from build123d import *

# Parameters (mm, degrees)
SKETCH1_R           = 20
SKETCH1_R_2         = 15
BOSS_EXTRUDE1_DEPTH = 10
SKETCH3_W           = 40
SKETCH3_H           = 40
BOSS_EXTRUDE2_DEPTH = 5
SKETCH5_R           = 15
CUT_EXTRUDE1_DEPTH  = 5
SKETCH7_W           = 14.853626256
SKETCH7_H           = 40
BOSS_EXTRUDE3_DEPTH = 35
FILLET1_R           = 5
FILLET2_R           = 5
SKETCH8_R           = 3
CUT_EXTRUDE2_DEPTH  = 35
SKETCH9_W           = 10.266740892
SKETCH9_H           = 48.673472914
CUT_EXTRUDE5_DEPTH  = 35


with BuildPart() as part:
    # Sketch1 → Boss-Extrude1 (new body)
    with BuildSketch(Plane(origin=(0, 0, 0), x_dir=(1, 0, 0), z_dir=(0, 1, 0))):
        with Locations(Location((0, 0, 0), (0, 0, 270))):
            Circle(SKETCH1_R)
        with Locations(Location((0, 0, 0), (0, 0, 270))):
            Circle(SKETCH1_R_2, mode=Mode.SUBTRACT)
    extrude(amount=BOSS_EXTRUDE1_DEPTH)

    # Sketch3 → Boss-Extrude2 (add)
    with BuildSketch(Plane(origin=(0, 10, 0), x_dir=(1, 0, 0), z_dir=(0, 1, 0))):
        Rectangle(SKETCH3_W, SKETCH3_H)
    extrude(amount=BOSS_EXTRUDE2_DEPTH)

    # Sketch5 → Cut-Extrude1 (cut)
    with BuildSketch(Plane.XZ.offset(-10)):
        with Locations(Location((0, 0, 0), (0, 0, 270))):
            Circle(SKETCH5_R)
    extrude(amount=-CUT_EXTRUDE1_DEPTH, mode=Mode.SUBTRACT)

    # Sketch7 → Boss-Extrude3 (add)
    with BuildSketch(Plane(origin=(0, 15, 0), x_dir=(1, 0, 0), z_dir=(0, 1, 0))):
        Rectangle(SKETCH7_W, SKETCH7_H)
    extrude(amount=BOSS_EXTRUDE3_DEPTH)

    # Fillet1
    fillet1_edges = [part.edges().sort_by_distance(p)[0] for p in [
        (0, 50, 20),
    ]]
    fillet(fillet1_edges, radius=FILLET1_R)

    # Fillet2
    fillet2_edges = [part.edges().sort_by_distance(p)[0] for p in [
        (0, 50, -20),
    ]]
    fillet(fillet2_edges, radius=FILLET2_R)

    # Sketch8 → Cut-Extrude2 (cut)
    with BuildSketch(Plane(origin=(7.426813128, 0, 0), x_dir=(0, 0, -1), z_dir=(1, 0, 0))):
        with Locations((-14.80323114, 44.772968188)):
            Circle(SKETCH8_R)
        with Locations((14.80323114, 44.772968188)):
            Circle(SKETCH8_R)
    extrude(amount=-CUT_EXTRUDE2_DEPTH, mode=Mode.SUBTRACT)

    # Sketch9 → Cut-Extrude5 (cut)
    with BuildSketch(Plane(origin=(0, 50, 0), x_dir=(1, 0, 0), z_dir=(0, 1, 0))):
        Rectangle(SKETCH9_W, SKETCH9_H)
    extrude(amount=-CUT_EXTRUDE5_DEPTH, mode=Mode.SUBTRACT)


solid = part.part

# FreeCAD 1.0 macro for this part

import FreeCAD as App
import Part
import Sketcher
from FreeCAD import Vector


def edges_at(feature, points):
    """Names of the edges that pass closest to the given points."""
    edges = feature.Shape.Edges
    near = lambda p: min(range(len(edges)), key=lambda i: edges[i].distToShape(Part.Vertex(*p))[0])
    return sorted({f"Edge{near(p) + 1}" for p in points})

doc = App.newDocument("Part")
body = doc.addObject("PartDesign::Body", "Body")

# Sketch on XZ plane
sketch1 = body.newObject("Sketcher::SketchObject", "Sketch")
sketch1.AttachmentSupport = (doc.getObject("XZ_Plane"), [""])
sketch1.MapMode = "FlatFace"
sketch1.addGeometry([
    Part.Circle(Vector(0, 0, 0), Vector(0, 0, 1), 20),
    Part.Circle(Vector(0, 0, 0), Vector(0, 0, 1), 15),
], False)
sketch1.addConstraint([
    Sketcher.Constraint("Coincident", 0, 3, -1, 1),
    Sketcher.Constraint("Coincident", 1, 3, -1, 1),
    Sketcher.Constraint("Diameter", 0, 40.0),
    Sketcher.Constraint("Diameter", 1, 30.0),
])
pad1 = body.newObject("PartDesign::Pad", "Pad")
pad1.Profile = sketch1
pad1.Length = 10
pad1.Reversed = True

# Sketch on XZ plane
sketch2 = body.newObject("Sketcher::SketchObject", "Sketch001")
sketch2.AttachmentSupport = (doc.getObject("XZ_Plane"), [""])
sketch2.MapMode = "FlatFace"
sketch2.AttachmentOffset = App.Placement(Vector(0, 0, -10), App.Rotation())
sketch2.addGeometry([
    Part.LineSegment(Vector(-20, -20, 0), Vector(-20, 20, 0)),
    Part.LineSegment(Vector(-20, 20, 0), Vector(20, 20, 0)),
    Part.LineSegment(Vector(20, 20, 0), Vector(20, -20, 0)),
    Part.LineSegment(Vector(20, -20, 0), Vector(-20, -20, 0)),
], False)
sketch2.addConstraint([
    Sketcher.Constraint("Coincident", 0, 2, 1, 1),
    Sketcher.Constraint("Coincident", 1, 2, 2, 1),
    Sketcher.Constraint("Coincident", 2, 2, 3, 1),
    Sketcher.Constraint("Coincident", 3, 2, 0, 1),
    Sketcher.Constraint("Vertical", 0),
    Sketcher.Constraint("Horizontal", 1),
    Sketcher.Constraint("Vertical", 2),
    Sketcher.Constraint("Horizontal", 3),
    Sketcher.Constraint("Symmetric", 0, 2, 2, 2, -1, 1),
    Sketcher.Constraint("Equal", 3, 0),
    Sketcher.Constraint("DistanceX", 1, 1, 1, 2, 40.0),
])
pad2 = body.newObject("PartDesign::Pad", "Pad001")
pad2.Profile = sketch2
pad2.Length = 5
pad2.Reversed = True

# Sketch on XZ plane
sketch3 = body.newObject("Sketcher::SketchObject", "Sketch002")
sketch3.AttachmentSupport = (doc.getObject("XZ_Plane"), [""])
sketch3.MapMode = "FlatFace"
sketch3.AttachmentOffset = App.Placement(Vector(0, 0, -10), App.Rotation())
sketch3.addGeometry(Part.Circle(Vector(0, 0, 0), Vector(0, 0, 1), 15), False)
sketch3.addConstraint([
    Sketcher.Constraint("Coincident", 0, 3, -1, 1),
    Sketcher.Constraint("Diameter", 0, 30.0),
])
pocket1 = body.newObject("PartDesign::Pocket", "Pocket")
pocket1.Profile = sketch3
pocket1.Length = 5

# Sketch on XZ plane
sketch4 = body.newObject("Sketcher::SketchObject", "Sketch003")
sketch4.AttachmentSupport = (doc.getObject("XZ_Plane"), [""])
sketch4.MapMode = "FlatFace"
sketch4.AttachmentOffset = App.Placement(Vector(0, 0, -15), App.Rotation())
sketch4.addGeometry([
    Part.LineSegment(Vector(-7.426813, -20, 0), Vector(-7.426813, 20, 0)),
    Part.LineSegment(Vector(-7.426813, 20, 0), Vector(7.426813, 20, 0)),
    Part.LineSegment(Vector(7.426813, 20, 0), Vector(7.426813, -20, 0)),
    Part.LineSegment(Vector(7.426813, -20, 0), Vector(-7.426813, -20, 0)),
], False)
sketch4.addConstraint([
    Sketcher.Constraint("Coincident", 0, 2, 1, 1),
    Sketcher.Constraint("Coincident", 1, 2, 2, 1),
    Sketcher.Constraint("Coincident", 2, 2, 3, 1),
    Sketcher.Constraint("Coincident", 3, 2, 0, 1),
    Sketcher.Constraint("Vertical", 0),
    Sketcher.Constraint("Horizontal", 1),
    Sketcher.Constraint("Vertical", 2),
    Sketcher.Constraint("Horizontal", 3),
    Sketcher.Constraint("Symmetric", 0, 2, 2, 2, -1, 1),
    Sketcher.Constraint("DistanceY", 0, 1, 0, 2, 40.0),
    Sketcher.Constraint("DistanceX", 1, 1, 1, 2, 14.853626),
])
pad3 = body.newObject("PartDesign::Pad", "Pad002")
pad3.Profile = sketch4
pad3.Length = 35
pad3.Reversed = True
doc.recompute()

fillet = body.newObject("PartDesign::Fillet", "Fillet")
fillet.Base = (pad3, edges_at(pad3, [(0, 50, 20)]))
fillet.Radius = 5
doc.recompute()

fillet2 = body.newObject("PartDesign::Fillet", "Fillet001")
fillet2.Base = (fillet, edges_at(fillet, [(0, 50, -20)]))
fillet2.Radius = 5

# Sketch on YZ plane
sketch5 = body.newObject("Sketcher::SketchObject", "Sketch004")
sketch5.AttachmentSupport = (doc.getObject("YZ_Plane"), [""])
sketch5.MapMode = "FlatFace"
sketch5.AttachmentOffset = App.Placement(Vector(0, 0, 7.426813), App.Rotation())
sketch5.addGeometry([
    Part.Circle(Vector(44.772968, 14.803231, 0), Vector(0, 0, 1), 3),
    Part.Circle(Vector(44.772968, -14.803231, 0), Vector(0, 0, 1), 3),
], False)
sketch5.addConstraint([
    Sketcher.Constraint("Equal", 0, 1),
    Sketcher.Constraint("Symmetric", 0, 3, 1, 3, -1),
    Sketcher.Constraint("Diameter", 0, 6.0),
    Sketcher.Constraint("DistanceX", -1, 1, 0, 3, 44.772968),
    Sketcher.Constraint("DistanceY", -1, 1, 0, 3, 14.803231),
])
pocket2 = body.newObject("PartDesign::Pocket", "Pocket001")
pocket2.Profile = sketch5
pocket2.Length = 35

# Sketch on XZ plane
sketch6 = body.newObject("Sketcher::SketchObject", "Sketch005")
sketch6.AttachmentSupport = (doc.getObject("XZ_Plane"), [""])
sketch6.MapMode = "FlatFace"
sketch6.AttachmentOffset = App.Placement(Vector(0, 0, -50), App.Rotation())
sketch6.addGeometry([
    Part.LineSegment(Vector(-5.13337, -24.336736, 0), Vector(-5.13337, 24.336736, 0)),
    Part.LineSegment(Vector(-5.13337, 24.336736, 0), Vector(5.13337, 24.336736, 0)),
    Part.LineSegment(Vector(5.13337, 24.336736, 0), Vector(5.13337, -24.336736, 0)),
    Part.LineSegment(Vector(5.13337, -24.336736, 0), Vector(-5.13337, -24.336736, 0)),
], False)
sketch6.addConstraint([
    Sketcher.Constraint("Coincident", 0, 2, 1, 1),
    Sketcher.Constraint("Coincident", 1, 2, 2, 1),
    Sketcher.Constraint("Coincident", 2, 2, 3, 1),
    Sketcher.Constraint("Coincident", 3, 2, 0, 1),
    Sketcher.Constraint("Vertical", 0),
    Sketcher.Constraint("Horizontal", 1),
    Sketcher.Constraint("Vertical", 2),
    Sketcher.Constraint("Horizontal", 3),
    Sketcher.Constraint("Symmetric", 0, 2, 2, 2, -1, 1),
    Sketcher.Constraint("DistanceX", 1, 1, 1, 2, 10.266741),
    Sketcher.Constraint("DistanceY", 0, 1, 0, 2, 48.673473),
])
pocket3 = body.newObject("PartDesign::Pocket", "Pocket002")
pocket3.Profile = sketch6
pocket3.Length = 35
pocket3.Reversed = True

doc.recompute()
